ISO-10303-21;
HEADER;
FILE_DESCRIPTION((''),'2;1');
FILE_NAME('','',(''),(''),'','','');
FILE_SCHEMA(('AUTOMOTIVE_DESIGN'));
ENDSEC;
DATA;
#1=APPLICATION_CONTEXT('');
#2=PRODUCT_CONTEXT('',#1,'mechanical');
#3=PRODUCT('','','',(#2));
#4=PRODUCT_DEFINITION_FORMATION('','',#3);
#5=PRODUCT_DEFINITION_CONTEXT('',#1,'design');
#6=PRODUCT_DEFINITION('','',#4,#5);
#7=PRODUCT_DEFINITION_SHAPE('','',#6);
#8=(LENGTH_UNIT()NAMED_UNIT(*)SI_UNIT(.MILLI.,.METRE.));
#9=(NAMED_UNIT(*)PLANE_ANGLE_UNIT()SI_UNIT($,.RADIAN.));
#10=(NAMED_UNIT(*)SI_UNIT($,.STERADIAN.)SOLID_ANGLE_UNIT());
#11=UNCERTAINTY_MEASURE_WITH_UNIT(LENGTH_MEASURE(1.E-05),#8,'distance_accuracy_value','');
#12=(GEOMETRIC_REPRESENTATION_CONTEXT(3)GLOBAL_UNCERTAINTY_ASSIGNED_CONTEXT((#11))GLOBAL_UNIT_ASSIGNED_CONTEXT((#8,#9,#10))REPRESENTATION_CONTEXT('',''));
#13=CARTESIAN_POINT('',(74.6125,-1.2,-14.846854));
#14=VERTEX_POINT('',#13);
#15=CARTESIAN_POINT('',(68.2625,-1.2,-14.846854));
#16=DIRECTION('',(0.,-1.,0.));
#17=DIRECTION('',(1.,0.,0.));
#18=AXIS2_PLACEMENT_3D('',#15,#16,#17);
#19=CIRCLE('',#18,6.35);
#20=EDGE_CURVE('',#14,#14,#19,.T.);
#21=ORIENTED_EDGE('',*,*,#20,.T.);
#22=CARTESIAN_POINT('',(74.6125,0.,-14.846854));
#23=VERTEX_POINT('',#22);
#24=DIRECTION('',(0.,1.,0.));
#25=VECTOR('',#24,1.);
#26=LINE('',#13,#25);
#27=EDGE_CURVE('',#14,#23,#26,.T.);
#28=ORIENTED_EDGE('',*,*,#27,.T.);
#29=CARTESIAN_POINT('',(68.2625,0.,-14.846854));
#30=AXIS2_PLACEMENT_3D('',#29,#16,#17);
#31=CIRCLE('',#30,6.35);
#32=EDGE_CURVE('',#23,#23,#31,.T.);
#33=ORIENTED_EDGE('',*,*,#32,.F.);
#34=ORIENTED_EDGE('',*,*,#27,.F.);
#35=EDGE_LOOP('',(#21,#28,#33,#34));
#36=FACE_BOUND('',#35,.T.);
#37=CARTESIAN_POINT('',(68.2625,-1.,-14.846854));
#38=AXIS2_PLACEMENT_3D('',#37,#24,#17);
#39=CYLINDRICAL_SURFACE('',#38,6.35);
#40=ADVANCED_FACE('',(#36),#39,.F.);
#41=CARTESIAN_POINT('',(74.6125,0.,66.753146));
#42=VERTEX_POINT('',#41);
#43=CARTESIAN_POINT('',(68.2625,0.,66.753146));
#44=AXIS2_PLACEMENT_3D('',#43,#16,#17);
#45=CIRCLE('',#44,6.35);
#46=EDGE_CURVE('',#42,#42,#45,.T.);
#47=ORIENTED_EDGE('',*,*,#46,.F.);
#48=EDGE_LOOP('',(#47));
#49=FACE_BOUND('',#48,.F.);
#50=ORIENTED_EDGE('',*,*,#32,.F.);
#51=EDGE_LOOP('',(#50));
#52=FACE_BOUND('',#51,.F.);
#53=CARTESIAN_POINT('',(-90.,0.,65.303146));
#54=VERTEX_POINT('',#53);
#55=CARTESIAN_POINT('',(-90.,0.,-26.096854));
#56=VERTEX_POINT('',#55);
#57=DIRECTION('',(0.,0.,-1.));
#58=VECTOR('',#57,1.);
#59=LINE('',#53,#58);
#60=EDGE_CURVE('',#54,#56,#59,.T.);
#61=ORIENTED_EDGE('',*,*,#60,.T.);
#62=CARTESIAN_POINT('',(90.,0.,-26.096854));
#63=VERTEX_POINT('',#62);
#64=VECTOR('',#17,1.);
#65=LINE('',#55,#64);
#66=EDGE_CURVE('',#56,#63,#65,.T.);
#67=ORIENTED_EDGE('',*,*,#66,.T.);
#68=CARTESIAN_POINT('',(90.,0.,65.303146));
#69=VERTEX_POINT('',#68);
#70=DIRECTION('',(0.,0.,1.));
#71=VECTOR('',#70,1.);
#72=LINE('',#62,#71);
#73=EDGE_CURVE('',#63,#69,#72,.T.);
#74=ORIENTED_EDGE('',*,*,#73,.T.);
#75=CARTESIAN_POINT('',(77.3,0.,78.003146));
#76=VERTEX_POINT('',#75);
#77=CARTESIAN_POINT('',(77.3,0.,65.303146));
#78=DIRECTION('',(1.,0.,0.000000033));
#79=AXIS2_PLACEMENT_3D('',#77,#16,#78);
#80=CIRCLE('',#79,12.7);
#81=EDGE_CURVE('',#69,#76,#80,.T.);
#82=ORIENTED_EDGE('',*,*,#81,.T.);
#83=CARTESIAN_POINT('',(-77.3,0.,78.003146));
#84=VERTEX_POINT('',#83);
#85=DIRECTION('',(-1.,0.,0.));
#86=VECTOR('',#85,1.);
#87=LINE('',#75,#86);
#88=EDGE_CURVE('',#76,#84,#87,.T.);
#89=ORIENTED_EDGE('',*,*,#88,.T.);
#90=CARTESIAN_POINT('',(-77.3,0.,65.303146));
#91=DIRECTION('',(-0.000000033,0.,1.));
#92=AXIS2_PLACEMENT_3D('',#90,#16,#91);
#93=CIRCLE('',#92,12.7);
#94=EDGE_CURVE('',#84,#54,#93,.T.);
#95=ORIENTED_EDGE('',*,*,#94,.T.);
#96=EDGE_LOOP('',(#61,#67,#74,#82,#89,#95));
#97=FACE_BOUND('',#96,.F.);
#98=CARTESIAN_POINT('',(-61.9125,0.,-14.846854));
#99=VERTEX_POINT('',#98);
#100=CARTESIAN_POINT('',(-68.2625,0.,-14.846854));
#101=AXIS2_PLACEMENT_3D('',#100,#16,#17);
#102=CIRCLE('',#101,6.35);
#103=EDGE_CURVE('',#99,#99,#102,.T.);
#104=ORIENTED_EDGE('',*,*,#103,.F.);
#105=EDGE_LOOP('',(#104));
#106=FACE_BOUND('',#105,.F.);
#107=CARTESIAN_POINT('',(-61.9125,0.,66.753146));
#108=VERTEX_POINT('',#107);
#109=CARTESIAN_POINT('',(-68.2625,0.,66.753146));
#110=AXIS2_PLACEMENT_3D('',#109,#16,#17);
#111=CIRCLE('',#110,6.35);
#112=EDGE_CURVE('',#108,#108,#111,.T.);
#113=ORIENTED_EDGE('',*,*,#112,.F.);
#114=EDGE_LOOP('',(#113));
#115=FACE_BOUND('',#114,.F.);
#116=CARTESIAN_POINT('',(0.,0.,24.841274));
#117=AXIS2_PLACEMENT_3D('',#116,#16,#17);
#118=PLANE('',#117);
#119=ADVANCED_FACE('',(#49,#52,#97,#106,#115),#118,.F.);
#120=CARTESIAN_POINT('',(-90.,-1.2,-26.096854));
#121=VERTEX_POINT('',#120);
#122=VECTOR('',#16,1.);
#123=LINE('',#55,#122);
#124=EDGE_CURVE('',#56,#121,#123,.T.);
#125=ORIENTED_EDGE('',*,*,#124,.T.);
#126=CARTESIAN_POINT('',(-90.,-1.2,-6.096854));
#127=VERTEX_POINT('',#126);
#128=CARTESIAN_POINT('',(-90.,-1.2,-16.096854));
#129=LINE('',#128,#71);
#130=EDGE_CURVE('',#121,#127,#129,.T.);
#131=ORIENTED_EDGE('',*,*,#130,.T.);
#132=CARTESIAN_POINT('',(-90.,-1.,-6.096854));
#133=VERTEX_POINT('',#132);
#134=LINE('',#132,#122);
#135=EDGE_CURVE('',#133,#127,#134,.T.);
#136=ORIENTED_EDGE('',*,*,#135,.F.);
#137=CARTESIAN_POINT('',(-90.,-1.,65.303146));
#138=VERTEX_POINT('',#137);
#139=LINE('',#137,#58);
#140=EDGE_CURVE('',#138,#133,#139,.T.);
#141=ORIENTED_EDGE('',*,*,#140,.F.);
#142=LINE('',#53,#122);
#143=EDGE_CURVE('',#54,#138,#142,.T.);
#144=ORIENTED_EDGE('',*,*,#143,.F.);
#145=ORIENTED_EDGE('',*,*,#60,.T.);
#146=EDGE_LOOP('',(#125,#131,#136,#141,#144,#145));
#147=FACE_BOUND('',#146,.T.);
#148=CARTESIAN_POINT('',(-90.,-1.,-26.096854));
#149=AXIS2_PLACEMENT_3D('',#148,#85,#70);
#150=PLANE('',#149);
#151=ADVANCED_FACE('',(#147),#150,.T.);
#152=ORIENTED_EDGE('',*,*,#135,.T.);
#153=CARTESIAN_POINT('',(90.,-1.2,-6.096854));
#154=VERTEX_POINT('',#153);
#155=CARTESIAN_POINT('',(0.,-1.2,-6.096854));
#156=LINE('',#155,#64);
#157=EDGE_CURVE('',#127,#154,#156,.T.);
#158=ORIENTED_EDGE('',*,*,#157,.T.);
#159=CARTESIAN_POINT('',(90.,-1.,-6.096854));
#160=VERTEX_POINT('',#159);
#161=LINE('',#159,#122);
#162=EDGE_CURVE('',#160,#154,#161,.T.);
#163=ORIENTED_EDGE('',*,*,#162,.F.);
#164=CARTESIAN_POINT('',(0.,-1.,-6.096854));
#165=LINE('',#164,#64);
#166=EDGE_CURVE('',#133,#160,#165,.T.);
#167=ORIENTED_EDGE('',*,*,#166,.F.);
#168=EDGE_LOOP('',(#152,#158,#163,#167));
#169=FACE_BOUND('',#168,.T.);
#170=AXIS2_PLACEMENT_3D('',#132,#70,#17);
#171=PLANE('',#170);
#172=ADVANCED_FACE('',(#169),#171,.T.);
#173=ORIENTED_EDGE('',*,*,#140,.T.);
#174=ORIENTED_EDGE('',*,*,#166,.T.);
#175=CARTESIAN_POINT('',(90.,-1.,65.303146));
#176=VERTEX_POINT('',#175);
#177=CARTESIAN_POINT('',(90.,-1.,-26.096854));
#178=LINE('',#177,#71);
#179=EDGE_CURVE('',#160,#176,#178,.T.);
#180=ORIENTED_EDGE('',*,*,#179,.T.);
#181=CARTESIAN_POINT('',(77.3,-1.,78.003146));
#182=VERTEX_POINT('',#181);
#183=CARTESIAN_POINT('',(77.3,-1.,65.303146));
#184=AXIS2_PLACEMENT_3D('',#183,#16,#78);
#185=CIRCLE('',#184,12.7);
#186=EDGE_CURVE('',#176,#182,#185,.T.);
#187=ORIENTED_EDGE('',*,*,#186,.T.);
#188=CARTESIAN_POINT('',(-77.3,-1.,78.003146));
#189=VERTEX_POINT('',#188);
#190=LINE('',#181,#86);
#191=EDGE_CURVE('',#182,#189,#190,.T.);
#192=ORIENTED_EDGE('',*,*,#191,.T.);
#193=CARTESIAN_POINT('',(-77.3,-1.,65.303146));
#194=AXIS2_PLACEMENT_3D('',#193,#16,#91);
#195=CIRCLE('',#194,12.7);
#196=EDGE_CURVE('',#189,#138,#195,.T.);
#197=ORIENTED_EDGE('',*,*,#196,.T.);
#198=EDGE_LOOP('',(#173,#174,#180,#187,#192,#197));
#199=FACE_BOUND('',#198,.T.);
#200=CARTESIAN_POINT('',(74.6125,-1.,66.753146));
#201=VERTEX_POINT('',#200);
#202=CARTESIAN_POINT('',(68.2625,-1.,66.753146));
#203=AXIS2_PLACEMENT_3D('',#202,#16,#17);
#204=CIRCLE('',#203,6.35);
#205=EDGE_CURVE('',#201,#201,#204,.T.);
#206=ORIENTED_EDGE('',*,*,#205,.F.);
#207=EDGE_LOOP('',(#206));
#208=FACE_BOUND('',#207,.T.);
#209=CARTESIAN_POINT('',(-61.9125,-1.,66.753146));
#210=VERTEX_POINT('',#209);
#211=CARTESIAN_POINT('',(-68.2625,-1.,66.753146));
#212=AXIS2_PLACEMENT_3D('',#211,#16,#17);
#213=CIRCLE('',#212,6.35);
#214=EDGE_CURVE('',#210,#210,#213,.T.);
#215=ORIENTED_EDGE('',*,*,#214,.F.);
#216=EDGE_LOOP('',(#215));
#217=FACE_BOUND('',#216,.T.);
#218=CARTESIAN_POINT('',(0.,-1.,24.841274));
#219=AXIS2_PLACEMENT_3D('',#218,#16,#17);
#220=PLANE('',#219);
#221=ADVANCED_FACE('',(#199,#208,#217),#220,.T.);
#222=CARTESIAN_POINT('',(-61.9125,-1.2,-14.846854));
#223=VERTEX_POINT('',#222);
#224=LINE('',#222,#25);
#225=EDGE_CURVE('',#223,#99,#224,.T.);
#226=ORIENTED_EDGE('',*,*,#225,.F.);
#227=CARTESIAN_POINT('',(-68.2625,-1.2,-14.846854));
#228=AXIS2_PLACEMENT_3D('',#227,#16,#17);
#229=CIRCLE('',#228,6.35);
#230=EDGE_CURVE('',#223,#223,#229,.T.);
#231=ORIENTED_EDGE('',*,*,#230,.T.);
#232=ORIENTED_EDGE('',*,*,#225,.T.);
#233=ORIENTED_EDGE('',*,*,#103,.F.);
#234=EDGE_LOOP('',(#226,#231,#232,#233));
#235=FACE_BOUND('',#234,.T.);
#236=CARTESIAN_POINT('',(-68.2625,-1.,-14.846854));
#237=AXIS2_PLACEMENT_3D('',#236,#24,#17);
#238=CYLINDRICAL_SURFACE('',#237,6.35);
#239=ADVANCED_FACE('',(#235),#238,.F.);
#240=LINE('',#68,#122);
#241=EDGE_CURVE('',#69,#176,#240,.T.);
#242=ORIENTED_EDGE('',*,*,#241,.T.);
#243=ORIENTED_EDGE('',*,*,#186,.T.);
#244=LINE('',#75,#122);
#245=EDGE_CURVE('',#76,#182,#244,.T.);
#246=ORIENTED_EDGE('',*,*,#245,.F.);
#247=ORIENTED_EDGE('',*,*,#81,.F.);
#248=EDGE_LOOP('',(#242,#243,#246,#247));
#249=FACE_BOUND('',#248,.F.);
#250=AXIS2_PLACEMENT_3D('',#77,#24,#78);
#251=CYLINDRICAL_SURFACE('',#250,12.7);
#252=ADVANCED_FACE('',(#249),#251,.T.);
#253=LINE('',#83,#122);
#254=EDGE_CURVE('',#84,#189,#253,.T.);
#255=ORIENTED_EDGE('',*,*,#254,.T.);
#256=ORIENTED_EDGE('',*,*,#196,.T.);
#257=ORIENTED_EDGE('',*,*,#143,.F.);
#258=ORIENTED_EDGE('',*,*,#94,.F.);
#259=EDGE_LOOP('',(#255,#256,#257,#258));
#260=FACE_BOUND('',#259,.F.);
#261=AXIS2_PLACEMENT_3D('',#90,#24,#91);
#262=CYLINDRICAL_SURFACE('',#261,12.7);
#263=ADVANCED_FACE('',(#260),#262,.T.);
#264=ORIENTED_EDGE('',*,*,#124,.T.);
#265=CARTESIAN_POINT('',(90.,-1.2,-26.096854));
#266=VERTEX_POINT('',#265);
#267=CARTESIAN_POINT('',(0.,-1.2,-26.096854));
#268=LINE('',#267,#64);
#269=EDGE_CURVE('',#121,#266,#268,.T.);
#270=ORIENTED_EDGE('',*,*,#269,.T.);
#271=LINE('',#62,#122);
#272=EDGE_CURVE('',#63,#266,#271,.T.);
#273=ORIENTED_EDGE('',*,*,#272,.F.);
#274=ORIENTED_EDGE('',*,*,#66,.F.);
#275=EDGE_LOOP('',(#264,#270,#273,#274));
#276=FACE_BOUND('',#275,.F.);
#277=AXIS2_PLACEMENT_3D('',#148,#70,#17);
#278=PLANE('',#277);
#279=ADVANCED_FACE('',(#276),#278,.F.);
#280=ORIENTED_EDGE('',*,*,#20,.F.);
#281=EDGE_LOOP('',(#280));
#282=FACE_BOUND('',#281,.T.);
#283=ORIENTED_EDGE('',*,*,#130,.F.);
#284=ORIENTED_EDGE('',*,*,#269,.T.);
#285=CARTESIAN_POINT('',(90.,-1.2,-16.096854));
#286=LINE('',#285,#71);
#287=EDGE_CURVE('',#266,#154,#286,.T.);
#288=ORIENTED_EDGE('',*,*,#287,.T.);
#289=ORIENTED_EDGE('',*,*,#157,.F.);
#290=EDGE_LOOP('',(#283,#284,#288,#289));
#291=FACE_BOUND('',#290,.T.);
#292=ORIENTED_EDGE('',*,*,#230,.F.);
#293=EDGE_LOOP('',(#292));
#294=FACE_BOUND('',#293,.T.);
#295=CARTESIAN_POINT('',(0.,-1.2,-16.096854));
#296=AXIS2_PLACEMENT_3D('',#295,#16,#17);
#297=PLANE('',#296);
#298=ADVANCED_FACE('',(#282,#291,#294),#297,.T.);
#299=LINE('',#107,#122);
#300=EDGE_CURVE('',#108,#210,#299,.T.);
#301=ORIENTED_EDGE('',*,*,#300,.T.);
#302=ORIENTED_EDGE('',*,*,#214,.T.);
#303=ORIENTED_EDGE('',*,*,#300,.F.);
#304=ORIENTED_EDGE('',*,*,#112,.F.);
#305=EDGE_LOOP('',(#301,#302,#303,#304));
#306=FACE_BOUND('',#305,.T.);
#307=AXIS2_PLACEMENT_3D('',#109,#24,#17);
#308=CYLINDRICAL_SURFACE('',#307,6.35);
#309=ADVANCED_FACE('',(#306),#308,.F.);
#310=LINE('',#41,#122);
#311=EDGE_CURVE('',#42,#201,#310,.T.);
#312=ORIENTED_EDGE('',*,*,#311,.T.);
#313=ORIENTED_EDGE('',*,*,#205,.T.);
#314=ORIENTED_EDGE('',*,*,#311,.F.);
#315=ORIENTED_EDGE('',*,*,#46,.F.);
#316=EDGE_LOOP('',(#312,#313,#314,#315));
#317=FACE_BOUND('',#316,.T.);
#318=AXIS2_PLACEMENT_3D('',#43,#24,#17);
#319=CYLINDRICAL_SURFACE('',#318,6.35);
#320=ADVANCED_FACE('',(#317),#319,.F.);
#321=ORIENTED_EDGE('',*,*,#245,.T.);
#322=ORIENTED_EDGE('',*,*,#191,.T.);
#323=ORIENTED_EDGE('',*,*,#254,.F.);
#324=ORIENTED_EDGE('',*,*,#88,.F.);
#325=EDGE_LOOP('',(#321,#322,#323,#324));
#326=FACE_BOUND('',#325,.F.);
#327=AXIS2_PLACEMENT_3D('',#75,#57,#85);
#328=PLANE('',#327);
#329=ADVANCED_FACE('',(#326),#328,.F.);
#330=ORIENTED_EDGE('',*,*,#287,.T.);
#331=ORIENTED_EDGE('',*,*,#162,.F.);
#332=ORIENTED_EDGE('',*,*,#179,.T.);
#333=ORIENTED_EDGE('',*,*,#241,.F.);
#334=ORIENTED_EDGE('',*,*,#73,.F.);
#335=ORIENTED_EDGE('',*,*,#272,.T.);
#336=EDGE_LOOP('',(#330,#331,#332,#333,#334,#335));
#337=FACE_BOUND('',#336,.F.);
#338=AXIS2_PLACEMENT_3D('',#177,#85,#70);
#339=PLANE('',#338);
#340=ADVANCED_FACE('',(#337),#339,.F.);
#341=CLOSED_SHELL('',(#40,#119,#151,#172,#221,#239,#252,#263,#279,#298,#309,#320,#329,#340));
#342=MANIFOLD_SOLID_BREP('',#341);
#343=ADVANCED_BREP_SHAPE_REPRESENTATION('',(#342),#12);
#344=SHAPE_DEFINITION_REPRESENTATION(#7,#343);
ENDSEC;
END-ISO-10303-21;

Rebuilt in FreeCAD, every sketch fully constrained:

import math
import FreeCAD as App
import Part
import Sketcher

doc = App.newDocument("Part")
body = doc.addObject("PartDesign::Body", "Body")

sketch1 = body.newObject("Sketcher::SketchObject", "Sketch")
sketch1.AttachmentSupport = (doc.getObject("XZ_Plane"), [""])
sketch1.MapMode = "FlatFace"
sketch1.addGeometry([
    Part.LineSegment(App.Vector(77.3, 78.003146, 0), App.Vector(-77.3, 78.003146, 0)),
    Part.ArcOfCircle(Part.Circle(App.Vector(-77.3, 65.303146, 0), App.Vector(0, 0, 1), 12.7), math.radians(90.000002), math.radians(179.999998)),
    Part.LineSegment(App.Vector(-90, 65.303146, 0), App.Vector(-90, -26.096854, 0)),
    Part.LineSegment(App.Vector(-90, -26.096854, 0), App.Vector(90, -26.096854, 0)),
    Part.LineSegment(App.Vector(90, -26.096854, 0), App.Vector(90, 65.303146, 0)),
    Part.ArcOfCircle(Part.Circle(App.Vector(77.3, 65.303146, 0), App.Vector(0, 0, 1), 12.7), math.radians(0.000002), math.radians(89.999998)),
    Part.Circle(App.Vector(-68.2625, -14.846854, 0), App.Vector(0, 0, 1), 6.35),
    Part.Circle(App.Vector(68.2625, -14.846854, 0), App.Vector(0, 0, 1), 6.35),
    Part.Circle(App.Vector(-68.2625, 66.753146, 0), App.Vector(0, 0, 1), 6.35),
    Part.Circle(App.Vector(68.2625, 66.753146, 0), App.Vector(0, 0, 1), 6.35),
], False)
sketch1.addConstraint([
    Sketcher.Constraint("Tangent", 0, 2, 1, 1),
    Sketcher.Constraint("Tangent", 1, 2, 2, 1),
    Sketcher.Constraint("Coincident", 2, 2, 3, 1),
    Sketcher.Constraint("Coincident", 3, 2, 4, 1),
    Sketcher.Constraint("Tangent", 4, 2, 5, 1),
    Sketcher.Constraint("Tangent", 5, 2, 0, 1),
    Sketcher.Constraint("Horizontal", 0),
    Sketcher.Constraint("Vertical", 2),
    Sketcher.Constraint("Horizontal", 3),
    Sketcher.Constraint("Vertical", 4),
    Sketcher.Constraint("Equal", 1, 5),
    Sketcher.Constraint("Equal", 6, 7),
    Sketcher.Constraint("Equal", 7, 8),
    Sketcher.Constraint("Equal", 8, 9),
    Sketcher.Constraint("Symmetric", 6, 3, 7, 3, -2),
    Sketcher.Constraint("Symmetric", 8, 3, 9, 3, -2),
    Sketcher.Constraint("Vertical", 6, 3, 8, 3),
    Sketcher.Constraint("Diameter", 6, 12.7),
    Sketcher.Constraint("Radius", 1, 12.7),
    Sketcher.Constraint("DistanceX", 3, 1, 3, 2, 180.0),
    Sketcher.Constraint("DistanceY", 2, 2, 2, 1, 91.4),
    Sketcher.Constraint("DistanceX", 1, 2, -1, 1, 90.0),
    Sketcher.Constraint("DistanceY", 6, 3, 8, 3, 81.6),
    Sketcher.Constraint("DistanceY", 6, 3, 1, 3, 80.15),
    Sketcher.Constraint("DistanceX", 6, 3, 7, 3, 136.525),
    Sketcher.Constraint("DistanceY", -1, 1, 1, 3, 65.303146),
])
pad1 = body.newObject("PartDesign::Pad", "Pad")
pad1.Profile = sketch1
pad1.Length = 1

sketch2 = body.newObject("Sketcher::SketchObject", "Sketch001")
sketch2.AttachmentSupport = (doc.getObject("XZ_Plane"), [""])
sketch2.MapMode = "FlatFace"
sketch2.AttachmentOffset = App.Placement(App.Vector(0, 0, 1), App.Rotation())
sketch2.addGeometry([
    Part.LineSegment(App.Vector(-90, -6.096854, 0), App.Vector(-90, -26.096854, 0)),
    Part.LineSegment(App.Vector(-90, -26.096854, 0), App.Vector(90, -26.096854, 0)),
    Part.LineSegment(App.Vector(90, -26.096854, 0), App.Vector(90, -6.096854, 0)),
    Part.LineSegment(App.Vector(90, -6.096854, 0), App.Vector(-90, -6.096854, 0)),
    Part.Circle(App.Vector(-68.2625, -14.846854, 0), App.Vector(0, 0, 1), 6.35),
    Part.Circle(App.Vector(68.2625, -14.846854, 0), App.Vector(0, 0, 1), 6.35),
], False)
sketch2.addConstraint([
    Sketcher.Constraint("Coincident", 0, 2, 1, 1),
    Sketcher.Constraint("Coincident", 1, 2, 2, 1),
    Sketcher.Constraint("Coincident", 2, 2, 3, 1),
    Sketcher.Constraint("Coincident", 3, 2, 0, 1),
    Sketcher.Constraint("Vertical", 0),
    Sketcher.Constraint("Horizontal", 1),
    Sketcher.Constraint("Vertical", 2),
    Sketcher.Constraint("Horizontal", 3),
    Sketcher.Constraint("Equal", 4, 5),
    Sketcher.Constraint("Symmetric", 4, 3, 5, 3, -2),
    Sketcher.Constraint("Diameter", 4, 12.7),
    Sketcher.Constraint("DistanceX", 1, 1, 1, 2, 180.0),
    Sketcher.Constraint("DistanceY", 0, 2, 0, 1, 20.0),
    Sketcher.Constraint("DistanceX", 0, 2, -1, 1, 90.0),
    Sketcher.Constraint("DistanceY", 0, 2, 4, 3, 11.25),
    Sketcher.Constraint("DistanceX", 4, 3, 5, 3, 136.525),
    Sketcher.Constraint("DistanceY", 4, 3, -1, 1, 14.846854),
])
pad2 = body.newObject("PartDesign::Pad", "Pad001")
pad2.Profile = sketch2
pad2.Length = 0.2

doc.recompute()
